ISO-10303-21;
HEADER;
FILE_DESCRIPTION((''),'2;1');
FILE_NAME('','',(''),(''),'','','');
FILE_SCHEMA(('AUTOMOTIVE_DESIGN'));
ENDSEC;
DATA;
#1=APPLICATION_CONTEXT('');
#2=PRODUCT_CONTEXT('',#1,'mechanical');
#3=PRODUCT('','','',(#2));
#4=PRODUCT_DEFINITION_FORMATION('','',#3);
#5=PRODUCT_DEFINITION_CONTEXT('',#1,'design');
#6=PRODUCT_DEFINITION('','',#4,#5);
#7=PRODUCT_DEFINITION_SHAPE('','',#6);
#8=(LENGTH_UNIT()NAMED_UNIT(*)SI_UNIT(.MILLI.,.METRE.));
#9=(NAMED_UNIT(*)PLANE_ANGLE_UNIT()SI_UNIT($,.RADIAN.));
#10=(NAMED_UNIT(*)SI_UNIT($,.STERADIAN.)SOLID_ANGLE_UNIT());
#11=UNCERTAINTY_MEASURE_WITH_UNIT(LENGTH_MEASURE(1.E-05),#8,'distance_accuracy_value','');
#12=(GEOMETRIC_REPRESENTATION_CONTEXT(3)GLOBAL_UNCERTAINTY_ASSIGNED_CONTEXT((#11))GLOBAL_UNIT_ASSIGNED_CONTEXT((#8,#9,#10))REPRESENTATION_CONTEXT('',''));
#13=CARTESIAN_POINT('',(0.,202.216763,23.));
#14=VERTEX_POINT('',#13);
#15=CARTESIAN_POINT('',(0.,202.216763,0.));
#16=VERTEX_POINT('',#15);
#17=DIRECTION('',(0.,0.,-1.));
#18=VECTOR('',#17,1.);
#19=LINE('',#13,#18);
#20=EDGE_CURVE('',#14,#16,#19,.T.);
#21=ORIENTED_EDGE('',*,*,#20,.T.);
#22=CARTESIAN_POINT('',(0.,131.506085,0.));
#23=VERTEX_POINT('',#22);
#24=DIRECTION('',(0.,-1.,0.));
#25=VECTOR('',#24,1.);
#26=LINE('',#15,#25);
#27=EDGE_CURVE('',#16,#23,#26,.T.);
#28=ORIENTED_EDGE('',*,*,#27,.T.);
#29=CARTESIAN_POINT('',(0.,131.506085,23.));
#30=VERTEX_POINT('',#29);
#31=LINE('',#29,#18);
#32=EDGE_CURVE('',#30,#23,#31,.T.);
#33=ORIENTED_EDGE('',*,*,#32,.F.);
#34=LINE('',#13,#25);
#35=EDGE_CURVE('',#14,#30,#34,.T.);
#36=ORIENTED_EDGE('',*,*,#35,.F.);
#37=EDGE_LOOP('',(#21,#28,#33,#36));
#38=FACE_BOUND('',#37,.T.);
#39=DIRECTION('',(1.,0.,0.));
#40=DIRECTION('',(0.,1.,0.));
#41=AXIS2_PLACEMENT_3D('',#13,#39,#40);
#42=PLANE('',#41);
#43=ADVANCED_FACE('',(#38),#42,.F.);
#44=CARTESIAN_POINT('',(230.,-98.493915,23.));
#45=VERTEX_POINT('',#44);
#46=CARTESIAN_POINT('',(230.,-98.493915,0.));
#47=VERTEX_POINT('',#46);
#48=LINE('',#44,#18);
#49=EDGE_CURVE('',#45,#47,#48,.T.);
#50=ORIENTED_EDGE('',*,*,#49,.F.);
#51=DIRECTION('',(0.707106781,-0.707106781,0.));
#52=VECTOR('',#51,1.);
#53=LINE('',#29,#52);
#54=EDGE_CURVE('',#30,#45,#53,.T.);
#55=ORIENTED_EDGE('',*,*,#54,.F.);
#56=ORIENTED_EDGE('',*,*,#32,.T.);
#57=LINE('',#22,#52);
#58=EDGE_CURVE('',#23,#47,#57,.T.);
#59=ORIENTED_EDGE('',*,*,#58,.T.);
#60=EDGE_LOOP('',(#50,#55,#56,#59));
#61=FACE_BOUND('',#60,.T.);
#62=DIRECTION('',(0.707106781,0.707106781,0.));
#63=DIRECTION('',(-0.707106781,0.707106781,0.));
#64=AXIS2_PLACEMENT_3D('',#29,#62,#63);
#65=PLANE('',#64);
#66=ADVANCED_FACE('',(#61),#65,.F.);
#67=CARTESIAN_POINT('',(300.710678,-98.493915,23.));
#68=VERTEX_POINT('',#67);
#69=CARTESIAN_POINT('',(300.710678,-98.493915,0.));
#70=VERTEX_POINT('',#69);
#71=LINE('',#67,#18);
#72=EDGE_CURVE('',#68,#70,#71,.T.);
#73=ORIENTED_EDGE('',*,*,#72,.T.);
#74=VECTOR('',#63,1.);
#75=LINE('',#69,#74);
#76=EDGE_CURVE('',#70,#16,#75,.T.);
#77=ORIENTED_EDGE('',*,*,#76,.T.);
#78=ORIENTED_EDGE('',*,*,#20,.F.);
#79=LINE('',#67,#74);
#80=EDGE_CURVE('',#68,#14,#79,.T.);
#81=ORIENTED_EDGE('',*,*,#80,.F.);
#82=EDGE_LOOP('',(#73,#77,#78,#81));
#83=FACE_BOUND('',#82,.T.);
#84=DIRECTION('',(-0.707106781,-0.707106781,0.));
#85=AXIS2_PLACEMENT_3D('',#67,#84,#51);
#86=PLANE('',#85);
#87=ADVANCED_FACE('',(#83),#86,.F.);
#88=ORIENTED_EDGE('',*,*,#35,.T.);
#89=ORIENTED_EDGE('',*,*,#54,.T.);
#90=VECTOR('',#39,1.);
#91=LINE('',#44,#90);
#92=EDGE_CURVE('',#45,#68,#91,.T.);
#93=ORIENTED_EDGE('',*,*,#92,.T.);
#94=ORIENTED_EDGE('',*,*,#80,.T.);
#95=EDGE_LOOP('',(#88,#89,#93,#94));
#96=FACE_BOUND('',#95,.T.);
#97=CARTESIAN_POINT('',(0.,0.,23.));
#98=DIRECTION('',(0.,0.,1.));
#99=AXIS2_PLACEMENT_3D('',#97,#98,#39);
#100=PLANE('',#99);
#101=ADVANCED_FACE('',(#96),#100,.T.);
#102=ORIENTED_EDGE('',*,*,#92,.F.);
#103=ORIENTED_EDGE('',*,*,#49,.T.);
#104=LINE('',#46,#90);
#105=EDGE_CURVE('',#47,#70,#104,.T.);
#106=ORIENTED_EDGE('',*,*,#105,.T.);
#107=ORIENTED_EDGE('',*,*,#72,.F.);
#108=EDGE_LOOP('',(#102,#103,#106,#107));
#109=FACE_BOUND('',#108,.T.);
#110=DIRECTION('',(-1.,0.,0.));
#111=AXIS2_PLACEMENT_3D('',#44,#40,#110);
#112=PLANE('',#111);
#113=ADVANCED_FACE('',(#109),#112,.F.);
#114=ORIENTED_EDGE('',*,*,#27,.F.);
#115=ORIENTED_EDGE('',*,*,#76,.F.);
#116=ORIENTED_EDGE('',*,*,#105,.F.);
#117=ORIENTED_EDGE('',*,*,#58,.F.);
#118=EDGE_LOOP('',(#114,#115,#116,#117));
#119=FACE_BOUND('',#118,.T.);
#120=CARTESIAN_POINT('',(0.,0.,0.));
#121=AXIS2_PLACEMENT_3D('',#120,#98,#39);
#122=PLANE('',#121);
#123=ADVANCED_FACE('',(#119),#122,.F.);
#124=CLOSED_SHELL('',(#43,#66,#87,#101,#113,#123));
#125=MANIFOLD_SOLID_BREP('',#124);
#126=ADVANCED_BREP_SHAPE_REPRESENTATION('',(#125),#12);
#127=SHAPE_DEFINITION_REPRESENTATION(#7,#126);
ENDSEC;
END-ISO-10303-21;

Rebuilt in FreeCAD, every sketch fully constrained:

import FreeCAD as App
import Part
import Sketcher
Q = App.Units.Quantity

doc = App.newDocument("Part")
params = doc.addObject("Spreadsheet::Sheet", "Params")
for row, (alias, value) in enumerate([
    ("pad1_length", "23 mm"),
], start=1):
    params.set(f"A{row}", alias)
    params.set(f"B{row}", "=" + value)
    params.setAlias(f"B{row}", alias)

body = doc.addObject("PartDesign::Body", "Body")

sketch1 = body.newObject("Sketcher::SketchObject", "Sketch")
sketch1.AttachmentSupport = (doc.getObject("XY_Plane"), [""])
sketch1.MapMode = "FlatFace"
sketch1.addGeometry([
    Part.LineSegment(App.Vector(0, 132, 0), App.Vector(230, -98, 0)),
    Part.LineSegment(App.Vector(230, -98, 0), App.Vector(301, -98, 0)),
    Part.LineSegment(App.Vector(301, -98, 0), App.Vector(0, 202, 0)),
    Part.LineSegment(App.Vector(0, 202, 0), App.Vector(0, 132, 0)),
], False)
sketch1.addConstraint([
    Sketcher.Constraint("Coincident", 0, 2, 1, 1),
    Sketcher.Constraint("Coincident", 1, 2, 2, 1),
    Sketcher.Constraint("Coincident", 2, 2, 3, 1),
    Sketcher.Constraint("Coincident", 3, 2, 0, 1),
    Sketcher.Constraint("Horizontal", 1),
    Sketcher.Constraint("Vertical", 3),
    Sketcher.Constraint("PointOnObject", 2, 2, -2),
    Sketcher.Constraint("Parallel", 0, 2),
    Sketcher.Constraint("Equal", 1, 3),
    Sketcher.Constraint("DistanceX", -1, 1, 0, 2, Q("230 mm")),
    Sketcher.Constraint("DistanceX", 1, 1, 1, 2, Q("70.710678 mm")),
    Sketcher.Constraint("DistanceY", 0, 2, -1, 1, Q("98.493915 mm")),
])
pad1 = body.newObject("PartDesign::Pad", "Pad")
pad1.Profile = sketch1
pad1.setExpression("Length", "Params.pad1_length")

doc.recompute()
